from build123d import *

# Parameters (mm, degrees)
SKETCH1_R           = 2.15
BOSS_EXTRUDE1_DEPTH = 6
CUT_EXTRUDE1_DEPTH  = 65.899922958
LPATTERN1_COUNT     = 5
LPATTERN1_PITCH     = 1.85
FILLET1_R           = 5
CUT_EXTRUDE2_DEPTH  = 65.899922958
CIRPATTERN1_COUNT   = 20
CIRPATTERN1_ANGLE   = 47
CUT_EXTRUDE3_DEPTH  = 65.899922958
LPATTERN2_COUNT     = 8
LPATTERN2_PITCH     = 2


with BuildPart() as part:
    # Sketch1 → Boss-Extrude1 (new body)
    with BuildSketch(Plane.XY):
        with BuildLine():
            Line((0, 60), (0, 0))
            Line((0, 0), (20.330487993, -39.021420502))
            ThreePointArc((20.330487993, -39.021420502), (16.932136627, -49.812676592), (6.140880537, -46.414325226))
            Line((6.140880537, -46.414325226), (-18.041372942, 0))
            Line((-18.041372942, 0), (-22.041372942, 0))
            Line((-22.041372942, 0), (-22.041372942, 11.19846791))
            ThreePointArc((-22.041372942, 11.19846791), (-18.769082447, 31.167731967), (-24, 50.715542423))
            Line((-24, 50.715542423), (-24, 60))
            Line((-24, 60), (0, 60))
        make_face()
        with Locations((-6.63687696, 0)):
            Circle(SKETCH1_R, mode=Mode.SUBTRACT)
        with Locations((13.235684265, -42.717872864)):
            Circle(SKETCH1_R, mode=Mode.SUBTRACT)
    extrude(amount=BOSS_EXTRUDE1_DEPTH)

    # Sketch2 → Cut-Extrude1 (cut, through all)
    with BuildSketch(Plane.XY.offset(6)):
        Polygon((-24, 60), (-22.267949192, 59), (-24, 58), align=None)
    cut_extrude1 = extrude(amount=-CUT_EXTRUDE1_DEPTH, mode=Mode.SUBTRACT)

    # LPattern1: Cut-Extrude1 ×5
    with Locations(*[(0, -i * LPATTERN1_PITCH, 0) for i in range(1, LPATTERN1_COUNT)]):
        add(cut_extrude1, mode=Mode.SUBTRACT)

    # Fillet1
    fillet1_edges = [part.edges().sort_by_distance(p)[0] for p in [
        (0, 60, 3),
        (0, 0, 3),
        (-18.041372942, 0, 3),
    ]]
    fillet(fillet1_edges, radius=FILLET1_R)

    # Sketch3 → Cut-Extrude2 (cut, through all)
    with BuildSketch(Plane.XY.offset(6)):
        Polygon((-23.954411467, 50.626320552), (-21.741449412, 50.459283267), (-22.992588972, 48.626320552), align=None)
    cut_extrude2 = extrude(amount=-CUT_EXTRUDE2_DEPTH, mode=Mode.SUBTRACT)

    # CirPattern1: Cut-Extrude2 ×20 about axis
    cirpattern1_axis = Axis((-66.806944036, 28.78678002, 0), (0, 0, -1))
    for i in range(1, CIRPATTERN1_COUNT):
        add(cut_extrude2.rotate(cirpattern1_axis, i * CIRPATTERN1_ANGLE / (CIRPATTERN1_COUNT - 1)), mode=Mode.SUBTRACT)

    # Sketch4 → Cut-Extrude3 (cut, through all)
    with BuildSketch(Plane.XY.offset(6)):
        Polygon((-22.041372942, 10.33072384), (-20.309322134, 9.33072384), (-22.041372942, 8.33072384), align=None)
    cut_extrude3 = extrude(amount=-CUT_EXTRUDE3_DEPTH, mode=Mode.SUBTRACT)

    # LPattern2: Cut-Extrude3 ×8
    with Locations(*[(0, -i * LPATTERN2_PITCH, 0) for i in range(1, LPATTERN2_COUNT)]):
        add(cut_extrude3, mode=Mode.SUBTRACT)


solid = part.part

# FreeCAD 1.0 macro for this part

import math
import FreeCAD as App
import Part
import Sketcher
Q = App.Units.Quantity


def edges_at(feature, points):
    """Names of the edges that pass closest to the given points."""
    edges = feature.Shape.Edges
    near = lambda p: min(range(len(edges)), key=lambda i: edges[i].distToShape(Part.Vertex(*p))[0])
    return sorted({f"Edge{near(p) + 1}" for p in points})

doc = App.newDocument("Part")
body = doc.addObject("PartDesign::Body", "Body")

sketch1 = body.newObject("Sketcher::SketchObject", "Sketch")
sketch1.AttachmentSupport = (doc.getObject("XY_Plane"), [""])
sketch1.MapMode = "FlatFace"
sketch1.addGeometry([
    Part.LineSegment(App.Vector(0, 0, 0), App.Vector(0, 60, 0)),
    Part.LineSegment(App.Vector(0, 60, 0), App.Vector(-24, 60, 0)),
    Part.LineSegment(App.Vector(-24, 60, 0), App.Vector(-24, 50.7, 0)),
    Part.ArcOfCircle(Part.Circle(App.Vector(-66.8, 28.8, 0), App.Vector(0, 0, 1), 48.1), math.radians(-21), math.radians(27)),
    Part.LineSegment(App.Vector(-22, 11.2, 0), App.Vector(-22, 0, 0)),
    Part.LineSegment(App.Vector(-22, 0, 0), App.Vector(-18, 0, 0)),
    Part.LineSegment(App.Vector(-18, 0, 0), App.Vector(6.1, -46.4, 0)),
    Part.ArcOfCircle(Part.Circle(App.Vector(13.2, -42.7, 0), App.Vector(0, 0, 1), 8), math.radians(-152), math.radians(28)),
    Part.LineSegment(App.Vector(20.3, -39, 0), App.Vector(0, 0, 0)),
    Part.Circle(App.Vector(13.2, -42.7, 0), App.Vector(0, 0, 1), 2.1),
    Part.Circle(App.Vector(-6.6, 0, 0), App.Vector(0, 0, 1), 2.1),
], False)
sketch1.addConstraint([
    Sketcher.Constraint("Coincident", 0, 2, 1, 1),
    Sketcher.Constraint("Coincident", 1, 2, 2, 1),
    Sketcher.Constraint("Coincident", 2, 2, 3, 2),
    Sketcher.Constraint("Coincident", 3, 1, 4, 1),
    Sketcher.Constraint("Coincident", 4, 2, 5, 1),
    Sketcher.Constraint("Coincident", 5, 2, 6, 1),
    Sketcher.Constraint("Tangent", 6, 2, 7, 1),
    Sketcher.Constraint("Tangent", 7, 2, 8, 1),
    Sketcher.Constraint("Coincident", 8, 2, 0, 1),
    Sketcher.Constraint("Vertical", 0),
    Sketcher.Constraint("Horizontal", 1),
    Sketcher.Constraint("Vertical", 2),
    Sketcher.Constraint("Vertical", 4),
    Sketcher.Constraint("Horizontal", 5),
    Sketcher.Constraint("Coincident", 8, 2, -1, 1),
    Sketcher.Constraint("Coincident", 9, 3, 7, 3),
    Sketcher.Constraint("Equal", 9, 10),
    Sketcher.Constraint("PointOnObject", 10, 3, -1),
    Sketcher.Constraint("PointOnObject", 4, 2, -1),
    Sketcher.Constraint("Parallel", 6, 8),
    Sketcher.Constraint("Radius", 7, 8.0),
    Sketcher.Constraint("Diameter", 9, 4.3),
    Sketcher.Constraint("DistanceX", 1, 2, 1, 1, 24.0),
    Sketcher.Constraint("DistanceX", 5, 1, 5, 2, 4.0),
    Sketcher.Constraint("DistanceY", 0, 1, 0, 2, 60.0),
    Sketcher.Constraint("Distance", 8, 44.0),
    Sketcher.Constraint("Radius", 3, 48.09683),
    Sketcher.Constraint("DistanceY", 2, 2, 2, 1, 9.284458),
    Sketcher.Constraint("DistanceY", 4, 2, 4, 1, 11.198468),
    Sketcher.Constraint("DistanceY", -1, 1, 3, 3, 28.78678),
    Sketcher.Constraint("DistanceX", 10, 3, 7, 3, 19.872561),
])
pad1 = body.newObject("PartDesign::Pad", "Pad")
pad1.Profile = sketch1
pad1.Length = 6

sketch2 = body.newObject("Sketcher::SketchObject", "Sketch001")
sketch2.AttachmentSupport = (doc.getObject("XY_Plane"), [""])
sketch2.MapMode = "FlatFace"
sketch2.AttachmentOffset = App.Placement(App.Vector(0, 0, 6), App.Rotation())
sketch2.addGeometry([
    Part.LineSegment(App.Vector(-22.3, 59, 0), App.Vector(-24, 60, 0)),
    Part.LineSegment(App.Vector(-24, 60, 0), App.Vector(-24, 58, 0)),
    Part.LineSegment(App.Vector(-24, 58, 0), App.Vector(-22.3, 59, 0)),
], False)
sketch2.addConstraint([
    Sketcher.Constraint("Coincident", 0, 2, 1, 1),
    Sketcher.Constraint("Coincident", 1, 2, 2, 1),
    Sketcher.Constraint("Coincident", 2, 2, 0, 1),
    Sketcher.Constraint("Vertical", 1),
    Sketcher.Constraint("Equal", 0, 2),
    Sketcher.Constraint("DistanceY", 1, 2, 1, 1, 2.0),
    Sketcher.Constraint("Angle", 0, Q("150 deg")),
    Sketcher.Constraint("DistanceX", 0, 2, -1, 1, 24.0),
    Sketcher.Constraint("DistanceY", -1, 1, 0, 2, 60.0),
])
pocket1 = body.newObject("PartDesign::Pocket", "Pocket")
pocket1.Profile = sketch2
pocket1.Type = "ThroughAll"
doc.recompute()

linearpattern = body.newObject("PartDesign::LinearPattern", "LinearPattern")
linearpattern.Originals = [pocket1]
linearpattern.Direction = (doc.getObject("Y_Axis"), [""])
linearpattern.Mode = "offset"
linearpattern.Offset = 1.85
linearpattern.Occurrences = 5
linearpattern.Reversed = True
body.Tip = linearpattern
doc.recompute()

fillet = body.newObject("PartDesign::Fillet", "Fillet")
fillet.Base = (linearpattern, edges_at(linearpattern, [(0, 60, 3), (0, 0, 3), (-18.041, 0, 3)]))
fillet.Radius = 5

sketch3 = body.newObject("Sketcher::SketchObject", "Sketch002")
sketch3.AttachmentSupport = (doc.getObject("XY_Plane"), [""])
sketch3.MapMode = "FlatFace"
sketch3.AttachmentOffset = App.Placement(App.Vector(0, 0, 6), App.Rotation())
sketch3.addGeometry([
    Part.LineSegment(App.Vector(-21.7, 50.5, 0), App.Vector(-24, 50.6, 0)),
    Part.LineSegment(App.Vector(-24, 50.6, 0), App.Vector(-23, 48.6, 0)),
    Part.LineSegment(App.Vector(-23, 48.6, 0), App.Vector(-21.7, 50.5, 0)),
], False)
sketch3.addConstraint([
    Sketcher.Constraint("Coincident", 0, 2, 1, 1),
    Sketcher.Constraint("Coincident", 1, 2, 2, 1),
    Sketcher.Constraint("Coincident", 2, 2, 0, 1),
    Sketcher.Constraint("Equal", 0, 1),
    Sketcher.Constraint("Equal", 1, 2),
    Sketcher.Constraint("DistanceY", 1, 2, 0, 2, 2.0),
    Sketcher.Constraint("DistanceX", 0, 2, -1, 1, 23.954411),
    Sketcher.Constraint("DistanceY", -1, 1, 0, 2, 50.626321),
    Sketcher.Constraint("DistanceX", 1, 2, -1, 1, 22.992589),
])
pocket2 = body.newObject("PartDesign::Pocket", "Pocket001")
pocket2.Profile = sketch3
pocket2.Type = "ThroughAll"
doc.recompute()

datumline = body.newObject("PartDesign::Line", "DatumLine")
datumline.Placement = App.Placement(App.Vector(-66.806944, 28.78678, 0), App.Rotation(App.Vector(0, 0, 1), App.Vector(0, 0, -1)))
polarpattern = body.newObject("PartDesign::PolarPattern", "PolarPattern")
polarpattern.Originals = [pocket2]
polarpattern.Axis = (datumline, [""])
polarpattern.Angle = 47
polarpattern.Occurrences = 20
body.Tip = polarpattern

sketch4 = body.newObject("Sketcher::SketchObject", "Sketch003")
sketch4.AttachmentSupport = (doc.getObject("XY_Plane"), [""])
sketch4.MapMode = "FlatFace"
sketch4.AttachmentOffset = App.Placement(App.Vector(0, 0, 6), App.Rotation())
sketch4.addGeometry([
    Part.LineSegment(App.Vector(-20.3, 9.3, 0), App.Vector(-22, 10.3, 0)),
    Part.LineSegment(App.Vector(-22, 10.3, 0), App.Vector(-22, 8.3, 0)),
    Part.LineSegment(App.Vector(-22, 8.3, 0), App.Vector(-20.3, 9.3, 0)),
], False)
sketch4.addConstraint([
    Sketcher.Constraint("Coincident", 0, 2, 1, 1),
    Sketcher.Constraint("Coincident", 1, 2, 2, 1),
    Sketcher.Constraint("Coincident", 2, 2, 0, 1),
    Sketcher.Constraint("Vertical", 1),
    Sketcher.Constraint("Equal", 0, 2),
    Sketcher.Constraint("DistanceY", 1, 2, 1, 1, 2.0),
    Sketcher.Constraint("Angle", 0, Q("150 deg")),
    Sketcher.Constraint("DistanceX", 0, 2, -1, 1, 22.041373),
    Sketcher.Constraint("DistanceY", -1, 1, 0, 2, 10.330724),
])
pocket3 = body.newObject("PartDesign::Pocket", "Pocket002")
pocket3.Profile = sketch4
pocket3.Type = "ThroughAll"
doc.recompute()

linearpattern2 = body.newObject("PartDesign::LinearPattern", "LinearPattern001")
linearpattern2.Originals = [pocket3]
linearpattern2.Direction = (doc.getObject("Y_Axis"), [""])
linearpattern2.Mode = "offset"
linearpattern2.Offset = 2
linearpattern2.Occurrences = 8
linearpattern2.Reversed = True
body.Tip = linearpattern2

doc.recompute()
